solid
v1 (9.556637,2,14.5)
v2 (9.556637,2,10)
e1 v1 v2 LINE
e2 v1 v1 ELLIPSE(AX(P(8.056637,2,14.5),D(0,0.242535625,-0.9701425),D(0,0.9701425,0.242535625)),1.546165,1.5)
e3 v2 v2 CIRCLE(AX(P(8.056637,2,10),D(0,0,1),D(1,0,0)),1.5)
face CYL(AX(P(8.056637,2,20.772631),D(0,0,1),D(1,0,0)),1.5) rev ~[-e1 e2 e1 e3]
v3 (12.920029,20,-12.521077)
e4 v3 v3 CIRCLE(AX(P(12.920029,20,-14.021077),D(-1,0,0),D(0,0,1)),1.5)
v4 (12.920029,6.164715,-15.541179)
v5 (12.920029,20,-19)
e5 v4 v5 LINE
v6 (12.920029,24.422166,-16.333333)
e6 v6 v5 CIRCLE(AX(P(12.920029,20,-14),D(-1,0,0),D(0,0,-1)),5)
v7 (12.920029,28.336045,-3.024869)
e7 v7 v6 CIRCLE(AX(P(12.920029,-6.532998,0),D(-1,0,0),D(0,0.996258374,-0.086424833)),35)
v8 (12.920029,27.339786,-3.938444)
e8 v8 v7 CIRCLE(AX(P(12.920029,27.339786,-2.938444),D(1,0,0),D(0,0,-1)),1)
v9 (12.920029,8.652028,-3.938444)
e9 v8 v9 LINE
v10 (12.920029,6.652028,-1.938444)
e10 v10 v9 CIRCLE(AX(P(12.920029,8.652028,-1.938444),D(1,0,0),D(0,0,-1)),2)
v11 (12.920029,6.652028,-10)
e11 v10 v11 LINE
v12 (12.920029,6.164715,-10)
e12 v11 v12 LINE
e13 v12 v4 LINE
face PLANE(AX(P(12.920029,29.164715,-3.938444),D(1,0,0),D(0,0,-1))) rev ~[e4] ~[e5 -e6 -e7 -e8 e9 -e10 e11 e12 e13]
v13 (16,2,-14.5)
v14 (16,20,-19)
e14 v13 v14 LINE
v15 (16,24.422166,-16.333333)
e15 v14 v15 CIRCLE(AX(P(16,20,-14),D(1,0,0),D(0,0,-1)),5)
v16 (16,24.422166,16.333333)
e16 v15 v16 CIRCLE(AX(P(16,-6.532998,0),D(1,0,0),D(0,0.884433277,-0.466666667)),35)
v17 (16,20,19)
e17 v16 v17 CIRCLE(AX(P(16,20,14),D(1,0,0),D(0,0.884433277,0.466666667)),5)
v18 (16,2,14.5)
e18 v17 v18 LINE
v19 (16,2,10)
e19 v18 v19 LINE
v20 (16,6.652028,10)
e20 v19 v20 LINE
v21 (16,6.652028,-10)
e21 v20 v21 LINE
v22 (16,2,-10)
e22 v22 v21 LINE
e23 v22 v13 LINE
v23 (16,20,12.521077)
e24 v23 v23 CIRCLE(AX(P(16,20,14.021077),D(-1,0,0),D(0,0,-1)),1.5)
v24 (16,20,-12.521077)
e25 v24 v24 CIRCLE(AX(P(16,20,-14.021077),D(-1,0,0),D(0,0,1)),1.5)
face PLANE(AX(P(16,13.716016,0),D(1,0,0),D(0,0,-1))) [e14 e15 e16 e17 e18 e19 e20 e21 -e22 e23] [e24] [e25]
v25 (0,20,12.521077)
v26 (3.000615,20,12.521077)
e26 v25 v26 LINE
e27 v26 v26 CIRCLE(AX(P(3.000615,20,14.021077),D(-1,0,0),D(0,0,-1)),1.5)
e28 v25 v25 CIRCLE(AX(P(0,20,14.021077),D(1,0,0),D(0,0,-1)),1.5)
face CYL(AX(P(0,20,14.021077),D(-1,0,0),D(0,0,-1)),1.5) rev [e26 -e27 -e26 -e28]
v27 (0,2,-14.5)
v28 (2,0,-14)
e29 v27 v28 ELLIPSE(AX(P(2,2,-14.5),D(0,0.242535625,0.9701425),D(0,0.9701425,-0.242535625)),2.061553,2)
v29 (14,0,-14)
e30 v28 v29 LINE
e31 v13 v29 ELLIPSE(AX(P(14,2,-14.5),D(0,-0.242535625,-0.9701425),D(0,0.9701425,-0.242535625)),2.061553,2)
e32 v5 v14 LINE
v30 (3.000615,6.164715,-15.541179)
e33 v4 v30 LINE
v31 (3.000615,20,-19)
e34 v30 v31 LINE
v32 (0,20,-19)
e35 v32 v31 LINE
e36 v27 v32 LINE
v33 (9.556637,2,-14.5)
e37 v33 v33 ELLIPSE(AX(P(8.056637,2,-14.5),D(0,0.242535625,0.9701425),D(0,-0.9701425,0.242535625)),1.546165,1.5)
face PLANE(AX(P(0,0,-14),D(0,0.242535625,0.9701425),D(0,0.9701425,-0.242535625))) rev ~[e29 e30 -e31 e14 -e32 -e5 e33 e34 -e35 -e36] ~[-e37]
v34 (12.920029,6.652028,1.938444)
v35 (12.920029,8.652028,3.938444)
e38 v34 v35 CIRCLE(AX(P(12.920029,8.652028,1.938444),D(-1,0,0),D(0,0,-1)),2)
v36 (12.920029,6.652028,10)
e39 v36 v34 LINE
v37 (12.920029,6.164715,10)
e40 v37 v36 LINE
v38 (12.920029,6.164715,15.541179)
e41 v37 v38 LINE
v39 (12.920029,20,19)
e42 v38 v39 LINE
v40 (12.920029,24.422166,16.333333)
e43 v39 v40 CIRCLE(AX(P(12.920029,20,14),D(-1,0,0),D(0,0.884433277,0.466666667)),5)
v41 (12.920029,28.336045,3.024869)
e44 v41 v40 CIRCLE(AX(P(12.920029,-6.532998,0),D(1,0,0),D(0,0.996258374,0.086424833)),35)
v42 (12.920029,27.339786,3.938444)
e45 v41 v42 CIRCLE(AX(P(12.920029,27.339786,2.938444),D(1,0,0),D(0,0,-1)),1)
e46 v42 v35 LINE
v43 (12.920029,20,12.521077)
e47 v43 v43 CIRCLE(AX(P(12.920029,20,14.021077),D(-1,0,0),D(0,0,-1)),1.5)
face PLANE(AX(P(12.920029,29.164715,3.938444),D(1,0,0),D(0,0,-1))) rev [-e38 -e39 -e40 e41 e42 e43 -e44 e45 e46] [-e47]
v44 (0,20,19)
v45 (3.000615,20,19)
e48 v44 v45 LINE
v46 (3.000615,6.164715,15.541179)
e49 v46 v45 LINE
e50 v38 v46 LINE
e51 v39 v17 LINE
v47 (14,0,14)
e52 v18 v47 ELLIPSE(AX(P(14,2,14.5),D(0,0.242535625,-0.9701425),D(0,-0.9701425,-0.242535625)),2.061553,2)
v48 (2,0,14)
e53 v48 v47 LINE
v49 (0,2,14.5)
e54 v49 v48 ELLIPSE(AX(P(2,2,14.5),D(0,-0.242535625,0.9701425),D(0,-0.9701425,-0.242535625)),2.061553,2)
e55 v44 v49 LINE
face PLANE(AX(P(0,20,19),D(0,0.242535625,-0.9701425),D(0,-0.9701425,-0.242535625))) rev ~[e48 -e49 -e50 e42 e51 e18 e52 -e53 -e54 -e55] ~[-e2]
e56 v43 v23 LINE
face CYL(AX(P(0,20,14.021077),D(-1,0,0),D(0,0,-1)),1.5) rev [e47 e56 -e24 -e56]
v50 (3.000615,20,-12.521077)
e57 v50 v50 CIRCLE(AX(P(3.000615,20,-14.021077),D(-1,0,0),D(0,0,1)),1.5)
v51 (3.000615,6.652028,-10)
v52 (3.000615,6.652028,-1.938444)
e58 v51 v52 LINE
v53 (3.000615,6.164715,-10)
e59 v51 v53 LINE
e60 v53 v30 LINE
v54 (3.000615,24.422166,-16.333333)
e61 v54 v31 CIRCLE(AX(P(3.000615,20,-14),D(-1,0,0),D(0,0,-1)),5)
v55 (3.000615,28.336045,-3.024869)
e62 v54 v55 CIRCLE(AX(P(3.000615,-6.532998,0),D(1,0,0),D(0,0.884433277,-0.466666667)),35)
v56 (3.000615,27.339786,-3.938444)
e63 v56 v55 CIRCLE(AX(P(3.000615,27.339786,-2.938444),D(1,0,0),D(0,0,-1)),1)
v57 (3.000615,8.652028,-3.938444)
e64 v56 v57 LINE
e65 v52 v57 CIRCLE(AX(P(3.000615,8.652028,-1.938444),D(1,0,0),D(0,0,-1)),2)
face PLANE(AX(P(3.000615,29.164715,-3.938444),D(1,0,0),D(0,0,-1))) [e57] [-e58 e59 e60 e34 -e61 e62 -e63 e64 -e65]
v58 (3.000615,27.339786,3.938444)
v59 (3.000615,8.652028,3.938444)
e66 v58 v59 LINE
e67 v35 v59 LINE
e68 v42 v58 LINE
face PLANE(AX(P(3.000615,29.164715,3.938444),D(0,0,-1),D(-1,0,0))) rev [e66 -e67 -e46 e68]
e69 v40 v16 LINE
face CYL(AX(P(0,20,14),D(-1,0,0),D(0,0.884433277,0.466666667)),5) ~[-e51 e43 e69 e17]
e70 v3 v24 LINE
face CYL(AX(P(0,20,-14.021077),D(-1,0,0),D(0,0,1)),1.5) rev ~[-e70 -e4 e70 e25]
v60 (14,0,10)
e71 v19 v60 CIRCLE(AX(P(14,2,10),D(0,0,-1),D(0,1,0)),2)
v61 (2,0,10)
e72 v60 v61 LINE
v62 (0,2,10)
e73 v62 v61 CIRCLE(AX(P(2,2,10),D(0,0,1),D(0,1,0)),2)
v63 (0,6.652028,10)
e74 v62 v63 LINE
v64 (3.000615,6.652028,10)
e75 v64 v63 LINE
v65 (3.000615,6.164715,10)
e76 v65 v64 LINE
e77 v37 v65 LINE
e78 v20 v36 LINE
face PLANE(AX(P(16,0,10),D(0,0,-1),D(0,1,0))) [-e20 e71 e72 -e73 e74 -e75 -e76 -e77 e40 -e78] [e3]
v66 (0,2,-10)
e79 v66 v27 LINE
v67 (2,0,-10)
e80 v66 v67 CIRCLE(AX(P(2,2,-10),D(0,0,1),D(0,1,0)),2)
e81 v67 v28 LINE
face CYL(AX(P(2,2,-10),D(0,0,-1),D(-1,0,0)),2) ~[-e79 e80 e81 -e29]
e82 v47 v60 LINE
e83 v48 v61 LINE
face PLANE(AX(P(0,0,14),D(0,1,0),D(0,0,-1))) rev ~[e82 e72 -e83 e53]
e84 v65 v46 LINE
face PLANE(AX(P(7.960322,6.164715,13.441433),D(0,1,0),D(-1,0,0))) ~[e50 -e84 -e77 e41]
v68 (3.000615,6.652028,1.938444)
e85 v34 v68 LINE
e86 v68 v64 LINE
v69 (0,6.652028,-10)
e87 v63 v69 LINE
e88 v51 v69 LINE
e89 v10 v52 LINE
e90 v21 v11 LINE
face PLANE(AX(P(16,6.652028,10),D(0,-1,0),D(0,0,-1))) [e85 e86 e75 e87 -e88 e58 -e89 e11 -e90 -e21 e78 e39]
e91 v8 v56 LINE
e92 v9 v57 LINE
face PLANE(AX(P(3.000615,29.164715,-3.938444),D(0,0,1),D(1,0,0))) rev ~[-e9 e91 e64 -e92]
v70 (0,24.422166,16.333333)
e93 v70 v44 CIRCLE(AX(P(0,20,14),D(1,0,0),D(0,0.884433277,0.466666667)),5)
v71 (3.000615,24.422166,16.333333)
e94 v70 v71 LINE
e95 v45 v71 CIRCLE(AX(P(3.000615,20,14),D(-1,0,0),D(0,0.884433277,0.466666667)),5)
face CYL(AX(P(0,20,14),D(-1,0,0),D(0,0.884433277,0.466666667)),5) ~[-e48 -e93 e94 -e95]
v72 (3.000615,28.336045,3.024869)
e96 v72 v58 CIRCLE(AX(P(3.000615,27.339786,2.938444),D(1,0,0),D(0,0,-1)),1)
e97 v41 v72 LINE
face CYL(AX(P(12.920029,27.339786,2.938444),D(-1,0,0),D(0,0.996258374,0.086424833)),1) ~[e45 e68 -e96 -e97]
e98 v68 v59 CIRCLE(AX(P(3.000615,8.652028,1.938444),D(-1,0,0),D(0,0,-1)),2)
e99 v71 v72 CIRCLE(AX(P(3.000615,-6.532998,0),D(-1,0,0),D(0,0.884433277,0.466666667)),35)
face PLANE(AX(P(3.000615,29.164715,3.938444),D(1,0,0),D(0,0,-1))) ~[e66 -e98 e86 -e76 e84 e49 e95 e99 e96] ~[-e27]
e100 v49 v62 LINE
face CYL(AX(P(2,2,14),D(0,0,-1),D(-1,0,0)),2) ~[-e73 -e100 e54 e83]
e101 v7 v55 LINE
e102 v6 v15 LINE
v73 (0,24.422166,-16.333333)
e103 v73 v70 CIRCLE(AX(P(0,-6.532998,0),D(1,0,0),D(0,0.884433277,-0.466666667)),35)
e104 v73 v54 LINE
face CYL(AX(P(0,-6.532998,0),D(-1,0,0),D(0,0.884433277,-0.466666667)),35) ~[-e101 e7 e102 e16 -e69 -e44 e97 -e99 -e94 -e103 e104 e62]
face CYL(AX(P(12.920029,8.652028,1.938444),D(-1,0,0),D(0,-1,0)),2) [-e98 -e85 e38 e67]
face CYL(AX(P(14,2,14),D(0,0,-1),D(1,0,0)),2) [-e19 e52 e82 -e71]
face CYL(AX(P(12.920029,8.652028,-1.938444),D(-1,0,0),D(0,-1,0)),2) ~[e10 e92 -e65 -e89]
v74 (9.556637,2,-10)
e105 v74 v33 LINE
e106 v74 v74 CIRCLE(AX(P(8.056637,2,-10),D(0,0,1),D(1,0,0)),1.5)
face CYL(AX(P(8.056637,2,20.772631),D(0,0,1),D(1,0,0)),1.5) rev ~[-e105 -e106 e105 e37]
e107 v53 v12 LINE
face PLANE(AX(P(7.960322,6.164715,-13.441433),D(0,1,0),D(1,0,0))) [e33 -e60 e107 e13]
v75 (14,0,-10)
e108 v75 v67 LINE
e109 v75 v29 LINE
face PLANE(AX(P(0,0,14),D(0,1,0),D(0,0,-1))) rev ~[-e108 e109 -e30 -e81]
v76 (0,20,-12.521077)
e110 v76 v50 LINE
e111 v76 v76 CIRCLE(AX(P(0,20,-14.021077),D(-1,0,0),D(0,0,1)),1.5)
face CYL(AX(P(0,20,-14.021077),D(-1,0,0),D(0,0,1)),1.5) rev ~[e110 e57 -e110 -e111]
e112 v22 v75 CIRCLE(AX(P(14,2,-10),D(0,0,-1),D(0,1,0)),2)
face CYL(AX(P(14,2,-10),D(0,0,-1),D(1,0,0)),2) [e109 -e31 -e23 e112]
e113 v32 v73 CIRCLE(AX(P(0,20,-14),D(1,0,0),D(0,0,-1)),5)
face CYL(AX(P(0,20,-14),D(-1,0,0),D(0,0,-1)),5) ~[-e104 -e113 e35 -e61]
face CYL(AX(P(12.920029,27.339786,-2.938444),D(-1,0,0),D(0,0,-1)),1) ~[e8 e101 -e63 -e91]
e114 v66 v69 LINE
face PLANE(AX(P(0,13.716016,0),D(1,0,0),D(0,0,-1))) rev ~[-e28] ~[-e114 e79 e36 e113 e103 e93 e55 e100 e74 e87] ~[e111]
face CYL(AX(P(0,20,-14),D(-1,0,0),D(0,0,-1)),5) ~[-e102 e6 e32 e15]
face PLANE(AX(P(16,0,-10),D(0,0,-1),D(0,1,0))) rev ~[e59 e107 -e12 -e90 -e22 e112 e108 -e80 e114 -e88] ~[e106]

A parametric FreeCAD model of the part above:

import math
import FreeCAD as App
import Part
import Sketcher
from FreeCAD import Vector


def edges_at(feature, points):
    """Names of the edges that pass closest to the given points."""
    edges = feature.Shape.Edges
    near = lambda p: min(range(len(edges)), key=lambda i: edges[i].distToShape(Part.Vertex(*p))[0])
    return sorted({f"Edge{near(p) + 1}" for p in points})

doc = App.newDocument("Part")
body = doc.addObject("PartDesign::Body", "Body")

# Sketch on YZ plane
sketch1 = body.newObject("Sketcher::SketchObject", "Sketch")
sketch1.AttachmentSupport = (doc.getObject("YZ_Plane"), [""])
sketch1.MapMode = "FlatFace"
sketch1.addGeometry([
    Part.LineSegment(Vector(0, 14, 0), Vector(0, -14, 0)),  # 0
    Part.LineSegment(Vector(0, -14, 0), Vector(20, -19, 0)),  # 1
    Part.ArcOfCircle(Part.Circle(Vector(20, -14, 0), Vector(0, 0, 1), 5), math.radians(-90), math.radians(-28)),  # 2
    Part.ArcOfCircle(Part.Circle(Vector(-7, 0, 0), Vector(0, 0, 1), 35), math.radians(-28), math.radians(28)),  # 3
    Part.ArcOfCircle(Part.Circle(Vector(20, 14, 0), Vector(0, 0, 1), 5), math.radians(28), math.radians(90)),  # 4
    Part.LineSegment(Vector(20, 19, 0), Vector(0, 14, 0)),  # 5
], False)
sketch1.addConstraint([
    Sketcher.Constraint("Coincident", 0, 2, 1, 1),
    Sketcher.Constraint("Coincident", 1, 2, 2, 1),
    Sketcher.Constraint("Tangent", 2, 2, 3, 1),
    Sketcher.Constraint("Tangent", 3, 2, 4, 1),
    Sketcher.Constraint("Coincident", 4, 2, 5, 1),
    Sketcher.Constraint("Coincident", 5, 2, 0, 1),
    Sketcher.Constraint("Vertical", 0),
    Sketcher.Constraint("Equal", 2, 4),
    Sketcher.Constraint("Symmetric", 0, 2, 5, 2, -1, 1),
    Sketcher.Constraint("Symmetric", 2, 3, 4, 3, -1),
    Sketcher.Constraint("Horizontal", 2, 3, 0, 2),
    Sketcher.Constraint("Vertical", 4, 3, 1, 2),
    Sketcher.Constraint("Vertical", 1, 2, 4, 2),
    Sketcher.Constraint("Radius", 2, 5.0),
    Sketcher.Constraint("Radius", 3, 35.0),
    Sketcher.Constraint("DistanceY", 0, 2, 0, 1, 28.0),
    Sketcher.Constraint("DistanceX", -1, 1, 2, 3, 20.0),
])
pad1 = body.newObject("PartDesign::Pad", "Pad")
pad1.Profile = sketch1
pad1.Length = 16

# Sketch on YZ plane
sketch2 = body.newObject("Sketcher::SketchObject", "Sketch001")
sketch2.AttachmentSupport = (doc.getObject("YZ_Plane"), [""])
sketch2.MapMode = "FlatFace"
sketch2.AttachmentOffset = App.Placement(Vector(0, 0, 16), App.Rotation())
sketch2.addGeometry([
    Part.LineSegment(Vector(7, 10, 0), Vector(0, 10, 0)),
    Part.LineSegment(Vector(0, 10, 0), Vector(0, -10, 0)),
    Part.LineSegment(Vector(0, -10, 0), Vector(7, -10, 0)),
    Part.LineSegment(Vector(7, -10, 0), Vector(7, 10, 0)),
], False)
sketch2.addConstraint([
    Sketcher.Constraint("Coincident", 0, 2, 1, 1),
    Sketcher.Constraint("Coincident", 1, 2, 2, 1),
    Sketcher.Constraint("Coincident", 2, 2, 3, 1),
    Sketcher.Constraint("Coincident", 3, 2, 0, 1),
    Sketcher.Constraint("Horizontal", 0),
    Sketcher.Constraint("Vertical", 1),
    Sketcher.Constraint("Horizontal", 2),
    Sketcher.Constraint("Vertical", 3),
    Sketcher.Constraint("Symmetric", 0, 2, 1, 2, -1, 1),
    Sketcher.Constraint("DistanceY", 1, 2, 1, 1, 20.0),
    Sketcher.Constraint("DistanceX", 0, 2, 0, 1, 6.652028),
])
pocket1 = body.newObject("PartDesign::Pocket", "Pocket")
pocket1.Profile = sketch2
pocket1.Type = "ThroughAll"

# Sketch on YZ plane
sketch3 = body.newObject("Sketcher::SketchObject", "Sketch002")
sketch3.AttachmentSupport = (doc.getObject("YZ_Plane"), [""])
sketch3.MapMode = "FlatFace"
sketch3.addGeometry(Part.Circle(Vector(20, -14, 0), Vector(0, 0, 1), 1.5), False)
sketch3.addConstraint([
    Sketcher.Constraint("Diameter", 0, 3.0),
    Sketcher.Constraint("DistanceX", -1, 1, 0, 3, 20.0),
    Sketcher.Constraint("DistanceY", 0, 3, -1, 1, 14.021077),
])
pocket2 = body.newObject("PartDesign::Pocket", "Pocket001")
pocket2.Profile = sketch3
pocket2.Type = "ThroughAll"
pocket2.Reversed = True
doc.recompute()

mirrored = body.newObject("PartDesign::Mirrored", "Mirrored")
mirrored.Originals = [pocket2]
mirrored.MirrorPlane = (doc.getObject("XY_Plane"), [""])
body.Tip = mirrored

# Sketch on XZ plane
sketch4 = body.newObject("Sketcher::SketchObject", "Sketch003")
sketch4.AttachmentSupport = (doc.getObject("XZ_Plane"), [""])
sketch4.MapMode = "FlatFace"
sketch4.AttachmentOffset = App.Placement(Vector(0, 0, -29.164715), App.Rotation())
sketch4.addGeometry([
    Part.LineSegment(Vector(3, -23, 0), Vector(3, -4, 0)),
    Part.LineSegment(Vector(3, -4, 0), Vector(13, -4, 0)),
    Part.LineSegment(Vector(13, -4, 0), Vector(13, -23, 0)),
    Part.LineSegment(Vector(13, -23, 0), Vector(3, -23, 0)),
], False)
sketch4.addConstraint([
    Sketcher.Constraint("Coincident", 0, 2, 1, 1),
    Sketcher.Constraint("Coincident", 1, 2, 2, 1),
    Sketcher.Constraint("Coincident", 2, 2, 3, 1),
    Sketcher.Constraint("Coincident", 3, 2, 0, 1),
    Sketcher.Constraint("Vertical", 0),
    Sketcher.Constraint("Horizontal", 1),
    Sketcher.Constraint("Vertical", 2),
    Sketcher.Constraint("Horizontal", 3),
    Sketcher.Constraint("DistanceX", 1, 1, 1, 2, 9.919414),
    Sketcher.Constraint("DistanceY", 0, 1, 0, 2, 19.005977),
    Sketcher.Constraint("DistanceX", -1, 1, 1, 2, 12.920029),
    Sketcher.Constraint("DistanceY", 2, 2, -1, 1, 22.944421),
])
pocket3 = body.newObject("PartDesign::Pocket", "Pocket002")
pocket3.Profile = sketch4
pocket3.Length = 23
pocket3.Reversed = True
doc.recompute()

mirrored2 = body.newObject("PartDesign::Mirrored", "Mirrored001")
mirrored2.Originals = [pocket3]
mirrored2.MirrorPlane = (doc.getObject("XY_Plane"), [""])
body.Tip = mirrored2
doc.recompute()

fillet = body.newObject("PartDesign::Fillet", "Fillet")
fillet.Base = (mirrored2, edges_at(mirrored2, [(7.96, 6.652, -3.938), (7.96, 6.652, 3.938)]))
fillet.Radius = 2
doc.recompute()

fillet2 = body.newObject("PartDesign::Fillet", "Fillet001")
fillet2.Base = (fillet, edges_at(fillet, [(7.96, 28.245, -3.938), (7.96, 28.245, 3.938)]))
fillet2.Radius = 1

# Sketch on XY plane
sketch5 = body.newObject("Sketcher::SketchObject", "Sketch004")
sketch5.AttachmentSupport = (doc.getObject("XY_Plane"), [""])
sketch5.MapMode = "FlatFace"
sketch5.AttachmentOffset = App.Placement(Vector(0, 0, 20.772631), App.Rotation())
sketch5.addGeometry(Part.Circle(Vector(8.1, 2, 0), Vector(0, 0, 1), 1.5), False)
sketch5.addConstraint([
    Sketcher.Constraint("Diameter", 0, 3.0),
    Sketcher.Constraint("DistanceY", -1, 1, 0, 3, 2.0),
    Sketcher.Constraint("DistanceX", -1, 1, 0, 3, 8.056637),
])
pocket4 = body.newObject("PartDesign::Pocket", "Pocket003")
pocket4.Profile = sketch5
pocket4.Type = "ThroughAll"
doc.recompute()

fillet3 = body.newObject("PartDesign::Fillet", "Fillet002")
fillet3.Base = (pocket4, edges_at(pocket4, [
    (0, 0, -12),
    (16, 0, -12),
    (16, 0, 12),
    (0, 0, 12),
]))
fillet3.Radius = 2

doc.recompute()
